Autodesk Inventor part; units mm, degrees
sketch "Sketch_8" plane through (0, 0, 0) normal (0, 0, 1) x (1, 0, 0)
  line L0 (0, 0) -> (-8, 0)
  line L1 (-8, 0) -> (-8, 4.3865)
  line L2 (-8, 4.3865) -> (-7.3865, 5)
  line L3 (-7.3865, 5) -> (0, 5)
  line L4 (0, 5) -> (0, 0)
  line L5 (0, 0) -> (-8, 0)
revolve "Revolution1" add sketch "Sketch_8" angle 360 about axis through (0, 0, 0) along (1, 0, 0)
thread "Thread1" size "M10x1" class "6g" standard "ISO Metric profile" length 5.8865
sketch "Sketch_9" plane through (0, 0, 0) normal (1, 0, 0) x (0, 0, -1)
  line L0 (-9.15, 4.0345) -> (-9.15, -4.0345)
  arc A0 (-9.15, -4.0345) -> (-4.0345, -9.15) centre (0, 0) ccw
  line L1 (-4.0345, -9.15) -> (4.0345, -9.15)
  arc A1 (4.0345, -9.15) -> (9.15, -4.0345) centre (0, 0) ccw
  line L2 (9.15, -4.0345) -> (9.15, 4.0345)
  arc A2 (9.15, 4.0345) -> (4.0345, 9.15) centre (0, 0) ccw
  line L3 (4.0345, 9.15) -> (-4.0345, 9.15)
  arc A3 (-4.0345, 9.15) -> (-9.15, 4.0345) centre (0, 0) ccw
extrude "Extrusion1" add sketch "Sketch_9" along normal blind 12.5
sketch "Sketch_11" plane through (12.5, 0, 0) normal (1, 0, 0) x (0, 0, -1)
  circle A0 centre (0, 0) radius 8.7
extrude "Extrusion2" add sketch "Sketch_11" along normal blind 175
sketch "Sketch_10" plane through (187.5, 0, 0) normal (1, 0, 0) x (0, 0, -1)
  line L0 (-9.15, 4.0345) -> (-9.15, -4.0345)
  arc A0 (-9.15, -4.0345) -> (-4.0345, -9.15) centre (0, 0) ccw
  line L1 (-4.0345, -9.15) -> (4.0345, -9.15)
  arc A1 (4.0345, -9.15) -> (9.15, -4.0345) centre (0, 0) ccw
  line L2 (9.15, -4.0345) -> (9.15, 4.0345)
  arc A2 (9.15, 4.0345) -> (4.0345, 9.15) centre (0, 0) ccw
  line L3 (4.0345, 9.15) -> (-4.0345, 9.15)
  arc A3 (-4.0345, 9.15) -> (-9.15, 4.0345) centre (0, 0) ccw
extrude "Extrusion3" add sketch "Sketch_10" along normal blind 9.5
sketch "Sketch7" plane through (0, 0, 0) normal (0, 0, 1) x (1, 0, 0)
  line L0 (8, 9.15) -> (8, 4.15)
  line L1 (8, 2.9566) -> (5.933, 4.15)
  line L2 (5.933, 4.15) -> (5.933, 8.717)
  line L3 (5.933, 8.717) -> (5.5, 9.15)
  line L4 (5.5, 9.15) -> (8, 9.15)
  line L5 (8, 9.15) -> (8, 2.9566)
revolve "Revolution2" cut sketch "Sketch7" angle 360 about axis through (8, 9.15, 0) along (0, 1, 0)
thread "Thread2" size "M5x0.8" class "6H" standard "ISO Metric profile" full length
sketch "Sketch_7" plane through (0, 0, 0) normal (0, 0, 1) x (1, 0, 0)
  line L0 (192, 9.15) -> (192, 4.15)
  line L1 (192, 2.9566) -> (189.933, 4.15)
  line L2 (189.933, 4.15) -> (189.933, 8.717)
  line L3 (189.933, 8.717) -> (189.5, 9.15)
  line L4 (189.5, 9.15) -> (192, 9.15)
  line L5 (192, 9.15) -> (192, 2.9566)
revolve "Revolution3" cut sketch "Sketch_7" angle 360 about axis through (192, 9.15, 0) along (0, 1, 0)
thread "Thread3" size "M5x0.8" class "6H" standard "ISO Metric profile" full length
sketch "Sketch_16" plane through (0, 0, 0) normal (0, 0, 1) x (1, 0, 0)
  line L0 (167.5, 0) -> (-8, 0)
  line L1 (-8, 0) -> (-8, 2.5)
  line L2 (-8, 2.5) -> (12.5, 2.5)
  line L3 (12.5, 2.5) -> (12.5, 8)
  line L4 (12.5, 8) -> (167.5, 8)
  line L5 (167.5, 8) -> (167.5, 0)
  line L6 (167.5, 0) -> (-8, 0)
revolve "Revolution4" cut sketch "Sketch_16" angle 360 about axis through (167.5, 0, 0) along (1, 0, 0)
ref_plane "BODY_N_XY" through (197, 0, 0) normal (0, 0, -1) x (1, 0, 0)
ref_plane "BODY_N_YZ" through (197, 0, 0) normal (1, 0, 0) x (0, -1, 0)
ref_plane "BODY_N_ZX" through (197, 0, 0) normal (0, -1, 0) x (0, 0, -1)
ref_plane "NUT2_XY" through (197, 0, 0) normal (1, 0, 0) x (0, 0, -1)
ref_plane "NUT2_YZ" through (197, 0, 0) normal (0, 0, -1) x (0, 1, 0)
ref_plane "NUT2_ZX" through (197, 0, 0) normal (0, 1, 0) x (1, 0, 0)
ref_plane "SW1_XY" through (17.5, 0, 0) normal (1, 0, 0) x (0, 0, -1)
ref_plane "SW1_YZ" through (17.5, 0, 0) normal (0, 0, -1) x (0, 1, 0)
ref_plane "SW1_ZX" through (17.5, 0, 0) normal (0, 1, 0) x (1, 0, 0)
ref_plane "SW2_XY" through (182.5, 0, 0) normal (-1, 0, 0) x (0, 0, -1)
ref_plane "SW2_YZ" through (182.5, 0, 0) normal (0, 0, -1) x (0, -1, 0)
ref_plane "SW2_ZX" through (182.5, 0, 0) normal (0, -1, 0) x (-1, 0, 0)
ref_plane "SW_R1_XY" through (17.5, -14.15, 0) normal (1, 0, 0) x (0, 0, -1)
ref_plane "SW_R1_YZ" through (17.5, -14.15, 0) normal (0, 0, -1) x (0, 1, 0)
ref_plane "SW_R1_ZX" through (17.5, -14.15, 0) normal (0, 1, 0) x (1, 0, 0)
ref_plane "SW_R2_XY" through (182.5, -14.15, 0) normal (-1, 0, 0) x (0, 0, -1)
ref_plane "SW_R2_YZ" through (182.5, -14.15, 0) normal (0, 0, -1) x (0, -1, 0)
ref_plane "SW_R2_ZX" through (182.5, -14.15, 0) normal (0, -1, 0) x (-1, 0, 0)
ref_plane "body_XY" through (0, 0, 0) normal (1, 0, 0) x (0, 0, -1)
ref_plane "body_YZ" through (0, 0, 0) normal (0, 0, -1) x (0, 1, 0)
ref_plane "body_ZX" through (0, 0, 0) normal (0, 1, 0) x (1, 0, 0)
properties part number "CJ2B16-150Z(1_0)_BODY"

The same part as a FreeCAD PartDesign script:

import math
import FreeCAD as App
import Part
import Sketcher

V = App.Vector
Q = App.Units.Quantity


def add_polygon(sketch, points):
    """Adds a closed chain of lines whose ends are joined by coincident constraints."""
    first, n = sketch.GeometryCount, len(points)
    for a, b in zip(points, points[1:] + points[:1]):
        sketch.addGeometry(Part.LineSegment(App.Vector(*a, 0), App.Vector(*b, 0)), False)
    for i in range(n):
        sketch.addConstraint(Sketcher.Constraint("Coincident", first + i, 2, first + (i + 1) % n, 1))

doc = App.newDocument("Part")
params = doc.addObject("Spreadsheet::Sheet", "Params")
for row, (alias, value) in enumerate([
    ("sketch1_width", "8 mm"),
    ("sketch1_height", "5 mm"),
    ("revolution_angle", "360 deg"),
    ("sketch2_radius", "10 mm"),
    ("pad1_length", "12.5 mm"),
    ("sketch3_diameter", "17.4 mm"),
    ("pad2_length", "175 mm"),
    ("sketch4_radius", "10 mm"),
    ("pad3_length", "9.5 mm"),
    ("sketch5_width", "2.5 mm"),
    ("groove_angle", "360 deg"),
    ("sketch6_width", "2.5 mm"),
    ("groove2_angle", "360 deg"),
    ("sketch7_width", "155 mm"),
    ("sketch7_height", "8 mm"),
    ("sketch7_width2", "175.5 mm"),
    ("sketch7_height2", "5.5 mm"),
    ("groove3_angle", "360 deg"),
], start=1):
    params.set(f"A{row}", alias)
    params.set(f"B{row}", "=" + value)
    params.setAlias(f"B{row}", alias)

body = doc.addObject("PartDesign::Body", "Body")

# Sketch on XY plane
sketch1 = doc.addObject("Sketcher::SketchObject", "Sketch")
body.addObject(sketch1)
sketch1.AttachmentSupport = (doc.XY_Plane, [""])
sketch1.MapMode = "FlatFace"
add_polygon(sketch1, [(-8, 0), (0, 0), (0, 5), (-7.3865, 5), (-8, 4.3865)])  # lines 0-4
sketch1.addConstraint([
    Sketcher.Constraint("Horizontal", 0),
    Sketcher.Constraint("Vertical", 1),
    Sketcher.Constraint("Horizontal", 2),
    Sketcher.Constraint("Vertical", 4),
    Sketcher.Constraint("Coincident", 0, 2, -1, 1),
    Sketcher.Constraint("DistanceX", 0, 1, 0, 2, 8.0),
    Sketcher.Constraint("DistanceY", 1, 1, 1, 2, 5.0),
    Sketcher.Constraint("Angle", 3, Q("-135 deg")),
    Sketcher.Constraint("DistanceX", 2, 2, 2, 1, 7.3865),
])
sketch1.setExpression("Constraints[10]", "Params.sketch1_width")
sketch1.setExpression("Constraints[11]", "Params.sketch1_height")
revolution = doc.addObject("PartDesign::Revolution", "Revolution")
body.addObject(revolution)
revolution.Profile = sketch1
revolution.ReferenceAxis = (sketch1, ["H_Axis"])
revolution.setExpression("Angle", "Params.revolution_angle")

# Sketch on YZ plane
sketch2 = doc.addObject("Sketcher::SketchObject", "Sketch001")
body.addObject(sketch2)
sketch2.AttachmentSupport = (doc.YZ_Plane, [""])
sketch2.MapMode = "FlatFace"
sketch2.addGeometry([
    Part.ArcOfCircle(Part.Circle(V(0, 0, 0), V(0, 0, 1), 9.999985), math.radians(23.794072), math.radians(66.205928)),  # 0
    Part.LineSegment(V(4.0345, 9.15, 0), V(-4.0345, 9.15, 0)),  # 1
    Part.ArcOfCircle(Part.Circle(V(0, 0, 0), V(0, 0, 1), 9.999985), math.radians(113.794072), math.radians(156.205928)),  # 2
    Part.LineSegment(V(-9.15, 4.0345, 0), V(-9.15, -4.0345, 0)),  # 3
    Part.ArcOfCircle(Part.Circle(V(0, 0, 0), V(0, 0, 1), 9.999985), math.radians(-156.205928), math.radians(-113.794072)),  # 4
    Part.LineSegment(V(-4.0345, -9.15, 0), V(4.0345, -9.15, 0)),  # 5
    Part.ArcOfCircle(Part.Circle(V(0, 0, 0), V(0, 0, 1), 9.999985), math.radians(-66.205928), math.radians(-23.794072)),  # 6
    Part.LineSegment(V(9.15, -4.0345, 0), V(9.15, 4.0345, 0)),  # 7
], False)
sketch2.addConstraint([
    Sketcher.Constraint("Coincident", 0, 2, 1, 1),
    Sketcher.Constraint("Coincident", 1, 2, 2, 1),
    Sketcher.Constraint("Coincident", 2, 2, 3, 1),
    Sketcher.Constraint("Coincident", 3, 2, 4, 1),
    Sketcher.Constraint("Coincident", 4, 2, 5, 1),
    Sketcher.Constraint("Coincident", 5, 2, 6, 1),
    Sketcher.Constraint("Coincident", 6, 2, 7, 1),
    Sketcher.Constraint("Coincident", 7, 2, 0, 1),
    Sketcher.Constraint("Horizontal", 1),
    Sketcher.Constraint("Vertical", 3),
    Sketcher.Constraint("Horizontal", 5),
    Sketcher.Constraint("Vertical", 7),
    Sketcher.Constraint("Coincident", 0, 3, -1, 1),
    Sketcher.Constraint("Coincident", 2, 3, -1, 1),
    Sketcher.Constraint("Coincident", 4, 3, -1, 1),
    Sketcher.Constraint("Coincident", 6, 3, -1, 1),
    Sketcher.Constraint("Equal", 0, 2),
    Sketcher.Constraint("Equal", 2, 4),
    Sketcher.Constraint("Equal", 4, 6),
    Sketcher.Constraint("Horizontal", 3, 2, 6, 2),
    Sketcher.Constraint("Vertical", 1, 2, 4, 2),
    Sketcher.Constraint("Equal", 5, 3),
    Sketcher.Constraint("Radius", 0, 10.0),
    Sketcher.Constraint("DistanceX", 1, 2, 1, 1, 8.069),
])
sketch2.setExpression("Constraints[22]", "Params.sketch2_radius")
pad1 = doc.addObject("PartDesign::Pad", "Pad")
body.addObject(pad1)
pad1.Profile = sketch2
pad1.setExpression("Length", "Params.pad1_length")

# Sketch on YZ plane
sketch3 = doc.addObject("Sketcher::SketchObject", "Sketch002")
body.addObject(sketch3)
sketch3.AttachmentSupport = (doc.YZ_Plane, [""])
sketch3.MapMode = "FlatFace"
sketch3.AttachmentOffset = App.Placement(V(0, 0, 12.5), App.Rotation())
sketch3.addGeometry(Part.Circle(V(0, 0, 0), V(0, 0, 1), 8.7), False)
sketch3.addConstraint([
    Sketcher.Constraint("Coincident", 0, 3, -1, 1),
    Sketcher.Constraint("Diameter", 0, 17.4),
])
sketch3.setExpression("Constraints[1]", "Params.sketch3_diameter")
pad2 = doc.addObject("PartDesign::Pad", "Pad001")
body.addObject(pad2)
pad2.Profile = sketch3
pad2.setExpression("Length", "Params.pad2_length")

# Sketch on YZ plane
sketch4 = doc.addObject("Sketcher::SketchObject", "Sketch003")
body.addObject(sketch4)
sketch4.AttachmentSupport = (doc.YZ_Plane, [""])
sketch4.MapMode = "FlatFace"
sketch4.AttachmentOffset = App.Placement(V(0, 0, 187.5), App.Rotation())
sketch4.addGeometry([
    Part.ArcOfCircle(Part.Circle(V(0, 0, 0), V(0, 0, 1), 9.999985), math.radians(23.794072), math.radians(66.205928)),  # 0
    Part.LineSegment(V(4.0345, 9.15, 0), V(-4.0345, 9.15, 0)),  # 1
    Part.ArcOfCircle(Part.Circle(V(0, 0, 0), V(0, 0, 1), 9.999985), math.radians(113.794072), math.radians(156.205928)),  # 2
    Part.LineSegment(V(-9.15, 4.0345, 0), V(-9.15, -4.0345, 0)),  # 3
    Part.ArcOfCircle(Part.Circle(V(0, 0, 0), V(0, 0, 1), 9.999985), math.radians(-156.205928), math.radians(-113.794072)),  # 4
    Part.LineSegment(V(-4.0345, -9.15, 0), V(4.0345, -9.15, 0)),  # 5
    Part.ArcOfCircle(Part.Circle(V(0, 0, 0), V(0, 0, 1), 9.999985), math.radians(-66.205928), math.radians(-23.794072)),  # 6
    Part.LineSegment(V(9.15, -4.0345, 0), V(9.15, 4.0345, 0)),  # 7
], False)
sketch4.addConstraint([
    Sketcher.Constraint("Coincident", 0, 2, 1, 1),
    Sketcher.Constraint("Coincident", 1, 2, 2, 1),
    Sketcher.Constraint("Coincident", 2, 2, 3, 1),
    Sketcher.Constraint("Coincident", 3, 2, 4, 1),
    Sketcher.Constraint("Coincident", 4, 2, 5, 1),
    Sketcher.Constraint("Coincident", 5, 2, 6, 1),
    Sketcher.Constraint("Coincident", 6, 2, 7, 1),
    Sketcher.Constraint("Coincident", 7, 2, 0, 1),
    Sketcher.Constraint("Horizontal", 1),
    Sketcher.Constraint("Vertical", 3),
    Sketcher.Constraint("Horizontal", 5),
    Sketcher.Constraint("Vertical", 7),
    Sketcher.Constraint("Coincident", 0, 3, -1, 1),
    Sketcher.Constraint("Coincident", 2, 3, -1, 1),
    Sketcher.Constraint("Coincident", 4, 3, -1, 1),
    Sketcher.Constraint("Coincident", 6, 3, -1, 1),
    Sketcher.Constraint("Equal", 0, 2),
    Sketcher.Constraint("Equal", 2, 4),
    Sketcher.Constraint("Equal", 4, 6),
    Sketcher.Constraint("Horizontal", 3, 2, 6, 2),
    Sketcher.Constraint("Vertical", 1, 2, 4, 2),
    Sketcher.Constraint("Equal", 5, 3),
    Sketcher.Constraint("Radius", 0, 10.0),
    Sketcher.Constraint("DistanceX", 1, 2, 1, 1, 8.069),
])
sketch4.setExpression("Constraints[22]", "Params.sketch4_radius")
pad3 = doc.addObject("PartDesign::Pad", "Pad002")
body.addObject(pad3)
pad3.Profile = sketch4
pad3.setExpression("Length", "Params.pad3_length")

# Sketch on XY plane
sketch5 = doc.addObject("Sketcher::SketchObject", "Sketch004")
body.addObject(sketch5)
sketch5.AttachmentSupport = (doc.XY_Plane, [""])
sketch5.MapMode = "FlatFace"
add_polygon(sketch5, [(8, 2.9566), (8, 9.15), (5.5, 9.15), (5.933, 8.717), (5.933, 4.15)])  # lines 0-4
sketch5.addGeometry(Part.LineSegment(V(8, 2.9566, 0), V(8, 9.15, 0)), True)  # axis
sketch5.addConstraint([
    Sketcher.Constraint("Vertical", 0),
    Sketcher.Constraint("Horizontal", 1),
    Sketcher.Constraint("Vertical", 3),
    Sketcher.Constraint("Vertical", 5),
    Sketcher.Constraint("Coincident", 5, 1, 4, 2),
    Sketcher.Constraint("Horizontal", 1, 2, 5, 2),
    Sketcher.Constraint("Angle", 2, Q("-45 deg")),
    Sketcher.Constraint("Angle", 4, Q("-30.0004 deg")),
    Sketcher.Constraint("DistanceX", 1, 2, 1, 1, 2.5),
    Sketcher.Constraint("DistanceX", -1, 1, 0, 2, 8.0),
    Sketcher.Constraint("DistanceY", 3, 2, 1, 2, 5.0),
    Sketcher.Constraint("DistanceY", 3, 2, 3, 1, 4.567),
    Sketcher.Constraint("DistanceY", -1, 1, 0, 2, 9.15),
])
sketch5.setExpression("Constraints[13]", "Params.sketch5_width")
groove = doc.addObject("PartDesign::Groove", "Groove")
body.addObject(groove)
groove.Profile = sketch5
groove.ReferenceAxis = (sketch5, ["Axis0"])
groove.setExpression("Angle", "Params.groove_angle")

# Sketch on XY plane
sketch6 = doc.addObject("Sketcher::SketchObject", "Sketch005")
body.addObject(sketch6)
sketch6.AttachmentSupport = (doc.XY_Plane, [""])
sketch6.MapMode = "FlatFace"
add_polygon(sketch6, [(192, 2.9566), (192, 9.15), (189.5, 9.15), (189.933, 8.717), (189.933, 4.15)])  # lines 0-4
sketch6.addGeometry(Part.LineSegment(V(192, 2.9566, 0), V(192, 9.15, 0)), True)  # axis
sketch6.addConstraint([
    Sketcher.Constraint("Vertical", 0),
    Sketcher.Constraint("Horizontal", 1),
    Sketcher.Constraint("Vertical", 3),
    Sketcher.Constraint("Vertical", 5),
    Sketcher.Constraint("Coincident", 5, 1, 4, 2),
    Sketcher.Constraint("Horizontal", 1, 2, 5, 2),
    Sketcher.Constraint("Angle", 2, Q("-45 deg")),
    Sketcher.Constraint("Angle", 4, Q("-30.0004 deg")),
    Sketcher.Constraint("DistanceX", 1, 2, 1, 1, 2.5),
    Sketcher.Constraint("DistanceX", -1, 1, 0, 2, 192.0),
    Sketcher.Constraint("DistanceY", 3, 2, 1, 2, 5.0),
    Sketcher.Constraint("DistanceY", 3, 2, 3, 1, 4.567),
    Sketcher.Constraint("DistanceY", -1, 1, 0, 2, 9.15),
])
sketch6.setExpression("Constraints[13]", "Params.sketch6_width")
groove2 = doc.addObject("PartDesign::Groove", "Groove001")
body.addObject(groove2)
groove2.Profile = sketch6
groove2.ReferenceAxis = (sketch6, ["Axis0"])
groove2.setExpression("Angle", "Params.groove2_angle")

# Sketch on XY plane
sketch7 = doc.addObject("Sketcher::SketchObject", "Sketch006")
body.addObject(sketch7)
sketch7.AttachmentSupport = (doc.XY_Plane, [""])
sketch7.MapMode = "FlatFace"
add_polygon(sketch7, [(-8, 0), (167.5, 0), (167.5, 8), (12.5, 8), (12.5, 2.5), (-8, 2.5)])  # lines 0-5
sketch7.addConstraint([
    Sketcher.Constraint("Horizontal", 0),
    Sketcher.Constraint("Vertical", 1),
    Sketcher.Constraint("Horizontal", 2),
    Sketcher.Constraint("Vertical", 3),
    Sketcher.Constraint("Horizontal", 4),
    Sketcher.Constraint("Vertical", 5),
    Sketcher.Constraint("PointOnObject", 0, 2, -1),
    Sketcher.Constraint("DistanceX", 2, 2, 2, 1, 155.0),
    Sketcher.Constraint("DistanceY", 1, 1, 1, 2, 8.0),
    Sketcher.Constraint("DistanceX", 0, 1, 0, 2, 175.5),
    Sketcher.Constraint("DistanceY", 3, 2, 3, 1, 5.5),
    Sketcher.Constraint("DistanceX", 4, 2, -1, 1, 8.0),
])
sketch7.setExpression("Constraints[13]", "Params.sketch7_width")
sketch7.setExpression("Constraints[14]", "Params.sketch7_height")
sketch7.setExpression("Constraints[15]", "Params.sketch7_width2")
sketch7.setExpression("Constraints[16]", "Params.sketch7_height2")
groove3 = doc.addObject("PartDesign::Groove", "Groove002")
body.addObject(groove3)
groove3.Profile = sketch7
groove3.ReferenceAxis = (sketch7, ["H_Axis"])
groove3.setExpression("Angle", "Params.groove3_angle")

doc.recompute()
